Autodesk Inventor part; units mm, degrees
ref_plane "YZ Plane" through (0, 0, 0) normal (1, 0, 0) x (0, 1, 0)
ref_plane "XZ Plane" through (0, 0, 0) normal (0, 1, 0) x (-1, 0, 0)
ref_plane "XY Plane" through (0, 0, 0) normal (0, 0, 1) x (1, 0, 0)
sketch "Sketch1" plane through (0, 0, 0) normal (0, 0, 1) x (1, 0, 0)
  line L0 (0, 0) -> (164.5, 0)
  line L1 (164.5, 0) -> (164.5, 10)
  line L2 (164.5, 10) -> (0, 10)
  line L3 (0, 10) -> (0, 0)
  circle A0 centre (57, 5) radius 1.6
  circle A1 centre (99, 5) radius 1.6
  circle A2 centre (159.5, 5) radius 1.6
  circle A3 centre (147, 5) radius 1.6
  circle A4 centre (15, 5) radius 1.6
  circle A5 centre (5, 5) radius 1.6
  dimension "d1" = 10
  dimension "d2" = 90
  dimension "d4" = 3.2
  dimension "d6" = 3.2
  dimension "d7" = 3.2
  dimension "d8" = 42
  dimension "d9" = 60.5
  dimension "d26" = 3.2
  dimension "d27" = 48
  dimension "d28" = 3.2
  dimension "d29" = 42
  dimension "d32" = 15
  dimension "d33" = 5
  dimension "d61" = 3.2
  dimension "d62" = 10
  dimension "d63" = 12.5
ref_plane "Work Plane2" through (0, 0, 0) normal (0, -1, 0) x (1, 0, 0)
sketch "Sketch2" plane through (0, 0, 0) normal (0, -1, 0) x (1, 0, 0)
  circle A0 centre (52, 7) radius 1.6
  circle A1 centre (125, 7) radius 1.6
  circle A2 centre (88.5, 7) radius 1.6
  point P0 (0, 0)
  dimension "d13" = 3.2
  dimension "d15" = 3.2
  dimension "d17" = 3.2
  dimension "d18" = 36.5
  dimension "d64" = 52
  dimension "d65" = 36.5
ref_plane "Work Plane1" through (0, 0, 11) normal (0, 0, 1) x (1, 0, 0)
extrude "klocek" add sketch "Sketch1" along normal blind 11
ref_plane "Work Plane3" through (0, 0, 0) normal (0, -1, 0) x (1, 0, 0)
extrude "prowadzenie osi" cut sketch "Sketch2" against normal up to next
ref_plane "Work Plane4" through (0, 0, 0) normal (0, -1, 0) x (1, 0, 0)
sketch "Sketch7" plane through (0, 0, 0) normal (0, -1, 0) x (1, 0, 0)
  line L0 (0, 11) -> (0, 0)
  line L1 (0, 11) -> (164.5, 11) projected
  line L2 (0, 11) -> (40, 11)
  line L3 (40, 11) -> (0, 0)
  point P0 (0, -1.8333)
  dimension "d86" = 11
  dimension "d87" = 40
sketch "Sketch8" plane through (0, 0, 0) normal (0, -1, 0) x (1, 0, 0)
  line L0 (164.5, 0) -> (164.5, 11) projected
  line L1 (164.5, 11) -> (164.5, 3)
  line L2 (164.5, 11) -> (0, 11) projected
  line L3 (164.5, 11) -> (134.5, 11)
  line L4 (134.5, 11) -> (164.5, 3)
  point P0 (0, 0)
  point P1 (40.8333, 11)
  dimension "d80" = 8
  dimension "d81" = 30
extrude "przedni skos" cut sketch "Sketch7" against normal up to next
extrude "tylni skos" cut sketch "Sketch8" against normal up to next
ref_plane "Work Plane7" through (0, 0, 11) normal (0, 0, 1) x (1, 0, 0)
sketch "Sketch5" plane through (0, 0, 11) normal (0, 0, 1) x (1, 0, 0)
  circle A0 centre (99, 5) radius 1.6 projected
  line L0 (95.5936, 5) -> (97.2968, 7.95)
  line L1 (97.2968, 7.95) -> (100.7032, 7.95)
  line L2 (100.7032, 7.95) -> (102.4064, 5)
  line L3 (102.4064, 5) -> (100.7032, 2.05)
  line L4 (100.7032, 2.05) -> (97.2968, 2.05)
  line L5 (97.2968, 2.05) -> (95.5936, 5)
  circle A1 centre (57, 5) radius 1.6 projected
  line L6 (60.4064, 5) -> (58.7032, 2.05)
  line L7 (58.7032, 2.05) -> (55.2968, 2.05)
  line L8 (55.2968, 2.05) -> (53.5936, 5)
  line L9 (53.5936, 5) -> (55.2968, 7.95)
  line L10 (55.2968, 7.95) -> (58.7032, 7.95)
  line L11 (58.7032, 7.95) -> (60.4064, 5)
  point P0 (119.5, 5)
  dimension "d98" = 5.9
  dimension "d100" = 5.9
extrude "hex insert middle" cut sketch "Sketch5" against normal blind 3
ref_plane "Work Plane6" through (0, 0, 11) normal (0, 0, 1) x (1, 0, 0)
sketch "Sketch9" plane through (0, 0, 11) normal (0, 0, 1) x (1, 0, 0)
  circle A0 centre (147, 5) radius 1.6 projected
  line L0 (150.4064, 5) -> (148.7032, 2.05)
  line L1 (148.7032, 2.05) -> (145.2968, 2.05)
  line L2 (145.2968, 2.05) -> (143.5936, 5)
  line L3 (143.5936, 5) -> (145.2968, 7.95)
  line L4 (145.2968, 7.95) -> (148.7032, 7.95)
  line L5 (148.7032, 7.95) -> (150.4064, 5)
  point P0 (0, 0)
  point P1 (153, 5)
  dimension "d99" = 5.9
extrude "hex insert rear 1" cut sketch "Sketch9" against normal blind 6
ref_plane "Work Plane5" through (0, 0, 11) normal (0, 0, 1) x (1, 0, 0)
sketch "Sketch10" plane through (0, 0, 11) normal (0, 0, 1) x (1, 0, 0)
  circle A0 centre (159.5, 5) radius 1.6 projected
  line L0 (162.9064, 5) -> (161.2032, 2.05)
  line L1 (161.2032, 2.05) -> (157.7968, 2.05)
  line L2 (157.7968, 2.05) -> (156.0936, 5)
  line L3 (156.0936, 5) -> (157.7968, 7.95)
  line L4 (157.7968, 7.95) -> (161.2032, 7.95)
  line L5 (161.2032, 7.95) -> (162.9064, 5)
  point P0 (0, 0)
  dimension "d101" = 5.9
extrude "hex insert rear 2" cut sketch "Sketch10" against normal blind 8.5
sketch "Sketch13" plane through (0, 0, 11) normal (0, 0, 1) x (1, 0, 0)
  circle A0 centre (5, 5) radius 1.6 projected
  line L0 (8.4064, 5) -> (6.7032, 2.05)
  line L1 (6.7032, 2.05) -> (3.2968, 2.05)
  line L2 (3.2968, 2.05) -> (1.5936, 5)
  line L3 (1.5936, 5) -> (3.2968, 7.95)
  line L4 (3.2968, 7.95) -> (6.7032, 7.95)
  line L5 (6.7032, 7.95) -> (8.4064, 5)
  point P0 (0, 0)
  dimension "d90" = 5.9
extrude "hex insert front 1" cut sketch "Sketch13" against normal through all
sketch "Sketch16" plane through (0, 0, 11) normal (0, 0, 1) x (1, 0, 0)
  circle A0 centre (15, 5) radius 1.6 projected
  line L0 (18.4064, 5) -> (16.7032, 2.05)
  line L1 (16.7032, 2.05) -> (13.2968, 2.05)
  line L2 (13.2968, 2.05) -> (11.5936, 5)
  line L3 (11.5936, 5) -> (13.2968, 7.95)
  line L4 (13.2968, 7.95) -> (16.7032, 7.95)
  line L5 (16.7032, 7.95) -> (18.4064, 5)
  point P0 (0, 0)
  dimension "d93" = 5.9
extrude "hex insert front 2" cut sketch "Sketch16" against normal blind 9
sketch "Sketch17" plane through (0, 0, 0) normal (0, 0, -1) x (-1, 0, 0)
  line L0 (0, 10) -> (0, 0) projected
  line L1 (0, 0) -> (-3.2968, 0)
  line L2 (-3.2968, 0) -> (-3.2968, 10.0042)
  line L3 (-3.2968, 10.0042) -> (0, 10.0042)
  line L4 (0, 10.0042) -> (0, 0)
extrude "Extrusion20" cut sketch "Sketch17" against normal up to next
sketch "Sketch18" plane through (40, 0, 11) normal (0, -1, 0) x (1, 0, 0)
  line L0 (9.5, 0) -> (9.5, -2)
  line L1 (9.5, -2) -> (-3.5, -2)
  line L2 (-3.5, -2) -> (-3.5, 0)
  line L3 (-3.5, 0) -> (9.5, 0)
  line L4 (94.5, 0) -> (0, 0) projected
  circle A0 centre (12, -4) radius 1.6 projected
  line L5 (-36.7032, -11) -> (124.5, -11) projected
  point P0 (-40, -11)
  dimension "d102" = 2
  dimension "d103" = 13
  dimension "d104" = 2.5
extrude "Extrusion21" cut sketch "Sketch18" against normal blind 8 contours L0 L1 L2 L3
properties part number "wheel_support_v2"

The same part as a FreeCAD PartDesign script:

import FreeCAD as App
import Part
import Sketcher
Q = App.Units.Quantity


def add_polygon(sketch, points):
    """Adds a closed chain of lines whose ends are joined by coincident constraints."""
    first, n = sketch.GeometryCount, len(points)
    for a, b in zip(points, points[1:] + points[:1]):
        sketch.addGeometry(Part.LineSegment(App.Vector(*a, 0), App.Vector(*b, 0)), False)
    for i in range(n):
        sketch.addConstraint(Sketcher.Constraint("Coincident", first + i, 2, first + (i + 1) % n, 1))

doc = App.newDocument("Part")
body = doc.addObject("PartDesign::Body", "Body")

sketch1 = doc.addObject("Sketcher::SketchObject", "Sketch")
body.addObject(sketch1)
sketch1.AttachmentSupport = (doc.XY_Plane, [""])
sketch1.MapMode = "FlatFace"
add_polygon(sketch1, [(0, 10), (0, 0), (164.5, 0), (164.5, 10)])
sketch1.addGeometry(Part.Circle(App.Vector(5, 5, 0), App.Vector(0, 0, 1), 1.6), False)
sketch1.addGeometry(Part.Circle(App.Vector(15, 5, 0), App.Vector(0, 0, 1), 1.6), False)
sketch1.addGeometry(Part.Circle(App.Vector(57, 5, 0), App.Vector(0, 0, 1), 1.6), False)
sketch1.addGeometry(Part.Circle(App.Vector(99, 5, 0), App.Vector(0, 0, 1), 1.6), False)
sketch1.addGeometry(Part.Circle(App.Vector(147, 5, 0), App.Vector(0, 0, 1), 1.6), False)
sketch1.addGeometry(Part.Circle(App.Vector(159.5, 5, 0), App.Vector(0, 0, 1), 1.6), False)
sketch1.addConstraint(Sketcher.Constraint("Vertical", 0))
sketch1.addConstraint(Sketcher.Constraint("Horizontal", 1))
sketch1.addConstraint(Sketcher.Constraint("Vertical", 2))
sketch1.addConstraint(Sketcher.Constraint("Horizontal", 3))
sketch1.addConstraint(Sketcher.Constraint("Coincident", 0, 2, -1, 1))
sketch1.addConstraint(Sketcher.Constraint("Equal", 4, 5))
sketch1.addConstraint(Sketcher.Constraint("Equal", 5, 6))
sketch1.addConstraint(Sketcher.Constraint("Equal", 6, 7))
sketch1.addConstraint(Sketcher.Constraint("Equal", 7, 8))
sketch1.addConstraint(Sketcher.Constraint("Equal", 8, 9))
sketch1.addConstraint(Sketcher.Constraint("Horizontal", 4, 3, 5, 3))
sketch1.addConstraint(Sketcher.Constraint("Horizontal", 5, 3, 6, 3))
sketch1.addConstraint(Sketcher.Constraint("Horizontal", 6, 3, 7, 3))
sketch1.addConstraint(Sketcher.Constraint("Horizontal", 7, 3, 8, 3))
sketch1.addConstraint(Sketcher.Constraint("Horizontal", 8, 3, 9, 3))
sketch1.addConstraint(Sketcher.Constraint("Diameter", 4, 3.2))
sketch1.addConstraint(Sketcher.Constraint("DistanceY", 0, 2, 0, 1, 10.0))
sketch1.addConstraint(Sketcher.Constraint("DistanceX", -1, 1, 4, 3, 5.0))
sketch1.addConstraint(Sketcher.Constraint("DistanceY", -1, 1, 4, 3, 5.0))
sketch1.addConstraint(Sketcher.Constraint("DistanceX", -1, 1, 5, 3, 15.0))
sketch1.addConstraint(Sketcher.Constraint("DistanceX", 5, 3, 6, 3, 42.0))
sketch1.addConstraint(Sketcher.Constraint("DistanceX", 6, 3, 7, 3, 42.0))
sketch1.addConstraint(Sketcher.Constraint("DistanceX", 7, 3, 8, 3, 48.0))
sketch1.addConstraint(Sketcher.Constraint("DistanceX", 9, 3, 1, 2, 5.0))
sketch1.addConstraint(Sketcher.Constraint("DistanceX", 8, 3, 9, 3, 12.5))
pad1 = doc.addObject("PartDesign::Pad", "Pad")
body.addObject(pad1)
pad1.Profile = sketch1
pad1.Length = 11

sketch2 = doc.addObject("Sketcher::SketchObject", "Sketch001")
body.addObject(sketch2)
sketch2.AttachmentSupport = (doc.XZ_Plane, [""])
sketch2.MapMode = "FlatFace"
sketch2.addGeometry(Part.Circle(App.Vector(52, 7, 0), App.Vector(0, 0, 1), 1.6), False)
sketch2.addGeometry(Part.Circle(App.Vector(125, 7, 0), App.Vector(0, 0, 1), 1.6), False)
sketch2.addGeometry(Part.Circle(App.Vector(88.5, 7, 0), App.Vector(0, 0, 1), 1.6), False)
sketch2.addConstraint(Sketcher.Constraint("Equal", 0, 1))
sketch2.addConstraint(Sketcher.Constraint("Equal", 1, 2))
sketch2.addConstraint(Sketcher.Constraint("Horizontal", 0, 3, 1, 3))
sketch2.addConstraint(Sketcher.Constraint("Horizontal", 1, 3, 2, 3))
sketch2.addConstraint(Sketcher.Constraint("Diameter", 0, 3.2))
sketch2.addConstraint(Sketcher.Constraint("DistanceX", -1, 1, 0, 3, 52.0))
sketch2.addConstraint(Sketcher.Constraint("DistanceX", 0, 3, 2, 3, 36.5))
sketch2.addConstraint(Sketcher.Constraint("DistanceX", 2, 3, 1, 3, 36.5))
sketch2.addConstraint(Sketcher.Constraint("DistanceY", -1, 1, 0, 3, 7.0))
pocket1 = doc.addObject("PartDesign::Pocket", "Pocket")
body.addObject(pocket1)
pocket1.Profile = sketch2
pocket1.Type = "UpToFirst"

sketch3 = doc.addObject("Sketcher::SketchObject", "Sketch002")
body.addObject(sketch3)
sketch3.AttachmentSupport = (doc.XZ_Plane, [""])
sketch3.MapMode = "FlatFace"
add_polygon(sketch3, [(40, 11), (0, 11), (0, 0)])
sketch3.addConstraint(Sketcher.Constraint("Horizontal", 0))
sketch3.addConstraint(Sketcher.Constraint("Vertical", 1))
sketch3.addConstraint(Sketcher.Constraint("Coincident", 1, 2, -1, 1))
sketch3.addConstraint(Sketcher.Constraint("DistanceX", 0, 2, 0, 1, 40.0))
sketch3.addConstraint(Sketcher.Constraint("DistanceY", 1, 2, 1, 1, 11.0))
pocket2 = doc.addObject("PartDesign::Pocket", "Pocket001")
body.addObject(pocket2)
pocket2.Profile = sketch3
pocket2.Type = "UpToFirst"

sketch4 = doc.addObject("Sketcher::SketchObject", "Sketch003")
body.addObject(sketch4)
sketch4.AttachmentSupport = (doc.XZ_Plane, [""])
sketch4.MapMode = "FlatFace"
add_polygon(sketch4, [(134, 11), (164, 3), (164, 11)])
sketch4.addConstraint(Sketcher.Constraint("Vertical", 1))
sketch4.addConstraint(Sketcher.Constraint("Horizontal", 2))
sketch4.addConstraint(Sketcher.Constraint("DistanceX", 2, 2, 2, 1, 30.0))
sketch4.addConstraint(Sketcher.Constraint("DistanceY", 1, 1, 1, 2, 8.0))
sketch4.addConstraint(Sketcher.Constraint("DistanceY", -1, 1, 0, 2, 3.0))
sketch4.addConstraint(Sketcher.Constraint("DistanceX", -1, 1, 0, 2, 164.5))
pocket3 = doc.addObject("PartDesign::Pocket", "Pocket002")
body.addObject(pocket3)
pocket3.Profile = sketch4
pocket3.Type = "UpToFirst"

sketch5 = doc.addObject("Sketcher::SketchObject", "Sketch004")
body.addObject(sketch5)
sketch5.AttachmentSupport = (doc.XY_Plane, [""])
sketch5.MapMode = "FlatFace"
sketch5.AttachmentOffset = App.Placement(App.Vector(0, 0, 11), App.Rotation())
add_polygon(sketch5, [(97.3, 8), (95.6, 5), (97.3, 2), (100.7, 2), (102.4, 5), (100.7, 8)])
sketch5.addGeometry(Part.Circle(App.Vector(99, 5, 0), App.Vector(0, 0, 1), 1.6), False)
add_polygon(sketch5, [(58.7, 2), (60.4, 5), (58.7, 8), (55.3, 8), (53.6, 5), (55.3, 2)])
sketch5.addGeometry(Part.Circle(App.Vector(57, 5, 0), App.Vector(0, 0, 1), 1.6), False)
sketch5.addConstraint(Sketcher.Constraint("Horizontal", 2))
sketch5.addConstraint(Sketcher.Constraint("Horizontal", 5))
sketch5.addConstraint(Sketcher.Constraint("Horizontal", 9))
sketch5.addConstraint(Sketcher.Constraint("Horizontal", 12))
sketch5.addConstraint(Sketcher.Constraint("Equal", 6, 13))
sketch5.addConstraint(Sketcher.Constraint("Parallel", 0, 3))
sketch5.addConstraint(Sketcher.Constraint("Parallel", 1, 4))
sketch5.addConstraint(Sketcher.Constraint("Parallel", 3, 7))
sketch5.addConstraint(Sketcher.Constraint("Parallel", 4, 8))
sketch5.addConstraint(Sketcher.Constraint("Parallel", 7, 10))
sketch5.addConstraint(Sketcher.Constraint("Parallel", 8, 11))
sketch5.addConstraint(Sketcher.Constraint("Horizontal", 6, 3, 13, 3))
sketch5.addConstraint(Sketcher.Constraint("Horizontal", 13, 3, 0, 2))
sketch5.addConstraint(Sketcher.Constraint("Horizontal", 0, 2, 3, 2))
sketch5.addConstraint(Sketcher.Constraint("Horizontal", 3, 2, 7, 2))
sketch5.addConstraint(Sketcher.Constraint("Horizontal", 5, 2, 8, 2))
sketch5.addConstraint(Sketcher.Constraint("Horizontal", 7, 2, 10, 2))
sketch5.addConstraint(Sketcher.Constraint("Horizontal", 2, 2, 11, 2))
sketch5.addConstraint(Sketcher.Constraint("Vertical", 2, 2, 4, 2))
sketch5.addConstraint(Sketcher.Constraint("Vertical", 1, 2, 5, 2))
sketch5.addConstraint(Sketcher.Constraint("Equal", 5, 9))
sketch5.addConstraint(Sketcher.Constraint("Diameter", 6, 3.2))
sketch5.addConstraint(Sketcher.Constraint("DistanceY", 2, 2, 4, 2, 5.9))
sketch5.addConstraint(Sketcher.Constraint("Angle", 0, Q("-120.0002 deg")))
sketch5.addConstraint(Sketcher.Constraint("DistanceX", -1, 1, 6, 3, 99.0))
sketch5.addConstraint(Sketcher.Constraint("DistanceY", -1, 1, 6, 3, 5.0))
sketch5.addConstraint(Sketcher.Constraint("DistanceX", -1, 1, 13, 3, 57.0))
sketch5.addConstraint(Sketcher.Constraint("DistanceX", 9, 2, 5, 2, 42.0))
sketch5.addConstraint(Sketcher.Constraint("DistanceX", 2, 1, 2, 2, 3.4064))
sketch5.addConstraint(Sketcher.Constraint("DistanceX", -1, 1, 0, 2, 95.5936))
pocket4 = doc.addObject("PartDesign::Pocket", "Pocket003")
body.addObject(pocket4)
pocket4.Profile = sketch5
pocket4.Length = 3

sketch6 = doc.addObject("Sketcher::SketchObject", "Sketch005")
body.addObject(sketch6)
sketch6.AttachmentSupport = (doc.XY_Plane, [""])
sketch6.MapMode = "FlatFace"
sketch6.AttachmentOffset = App.Placement(App.Vector(0, 0, 11), App.Rotation())
add_polygon(sketch6, [(148.7, 2), (150.4, 5), (148.7, 8), (145.3, 8), (143.6, 5), (145.3, 2)])
sketch6.addGeometry(Part.Circle(App.Vector(147, 5, 0), App.Vector(0, 0, 1), 1.6), False)
sketch6.addConstraint(Sketcher.Constraint("Horizontal", 2))
sketch6.addConstraint(Sketcher.Constraint("Horizontal", 5))
sketch6.addConstraint(Sketcher.Constraint("Parallel", 0, 3))
sketch6.addConstraint(Sketcher.Constraint("Parallel", 1, 4))
sketch6.addConstraint(Sketcher.Constraint("Horizontal", 6, 3, 0, 2))
sketch6.addConstraint(Sketcher.Constraint("Horizontal", 0, 2, 3, 2))
sketch6.addConstraint(Sketcher.Constraint("Vertical", 2, 2, 4, 2))
sketch6.addConstraint(Sketcher.Constraint("Vertical", 1, 2, 5, 2))
sketch6.addConstraint(Sketcher.Constraint("Diameter", 6, 3.2))
sketch6.addConstraint(Sketcher.Constraint("DistanceY", 4, 2, 2, 2, 5.9))
sketch6.addConstraint(Sketcher.Constraint("Angle", 0, Q("59.9998 deg")))
sketch6.addConstraint(Sketcher.Constraint("DistanceX", -1, 1, 6, 3, 147.0))
sketch6.addConstraint(Sketcher.Constraint("DistanceY", -1, 1, 6, 3, 5.0))
sketch6.addConstraint(Sketcher.Constraint("DistanceX", 2, 2, 2, 1, 3.4064))
sketch6.addConstraint(Sketcher.Constraint("DistanceX", -1, 1, 0, 2, 150.4064))
pocket5 = doc.addObject("PartDesign::Pocket", "Pocket004")
body.addObject(pocket5)
pocket5.Profile = sketch6
pocket5.Length = 6

sketch7 = doc.addObject("Sketcher::SketchObject", "Sketch006")
body.addObject(sketch7)
sketch7.AttachmentSupport = (doc.XY_Plane, [""])
sketch7.MapMode = "FlatFace"
sketch7.AttachmentOffset = App.Placement(App.Vector(0, 0, 11), App.Rotation())
add_polygon(sketch7, [(161.2, 2), (162.9, 5), (161.2, 8), (157.8, 8), (156.1, 5), (157.8, 2)])
sketch7.addGeometry(Part.Circle(App.Vector(159.5, 5, 0), App.Vector(0, 0, 1), 1.6), False)
sketch7.addConstraint(Sketcher.Constraint("Horizontal", 2))
sketch7.addConstraint(Sketcher.Constraint("Horizontal", 5))
sketch7.addConstraint(Sketcher.Constraint("Parallel", 0, 3))
sketch7.addConstraint(Sketcher.Constraint("Parallel", 1, 4))
sketch7.addConstraint(Sketcher.Constraint("Horizontal", 6, 3, 0, 2))
sketch7.addConstraint(Sketcher.Constraint("Horizontal", 0, 2, 3, 2))
sketch7.addConstraint(Sketcher.Constraint("Vertical", 2, 2, 4, 2))
sketch7.addConstraint(Sketcher.Constraint("Vertical", 1, 2, 5, 2))
sketch7.addConstraint(Sketcher.Constraint("Diameter", 6, 3.2))
sketch7.addConstraint(Sketcher.Constraint("DistanceY", 4, 2, 2, 2, 5.9))
sketch7.addConstraint(Sketcher.Constraint("Angle", 0, Q("59.9998 deg")))
sketch7.addConstraint(Sketcher.Constraint("DistanceY", -1, 1, 6, 3, 5.0))
sketch7.addConstraint(Sketcher.Constraint("DistanceX", -1, 1, 6, 3, 159.5))
sketch7.addConstraint(Sketcher.Constraint("DistanceX", 2, 2, 2, 1, 3.4064))
sketch7.addConstraint(Sketcher.Constraint("DistanceX", -1, 1, 0, 2, 162.9064))
pocket6 = doc.addObject("PartDesign::Pocket", "Pocket005")
body.addObject(pocket6)
pocket6.Profile = sketch7
pocket6.Length = 8.5

sketch8 = doc.addObject("Sketcher::SketchObject", "Sketch007")
body.addObject(sketch8)
sketch8.AttachmentSupport = (doc.XY_Plane, [""])
sketch8.MapMode = "FlatFace"
sketch8.AttachmentOffset = App.Placement(App.Vector(0, 0, 11), App.Rotation())
add_polygon(sketch8, [(6.7, 2), (8.4, 5), (6.7, 8), (3.3, 8), (1.6, 5), (3.3, 2)])
sketch8.addGeometry(Part.Circle(App.Vector(5, 5, 0), App.Vector(0, 0, 1), 1.6), False)
sketch8.addConstraint(Sketcher.Constraint("Horizontal", 2))
sketch8.addConstraint(Sketcher.Constraint("Horizontal", 5))
sketch8.addConstraint(Sketcher.Constraint("Parallel", 0, 3))
sketch8.addConstraint(Sketcher.Constraint("Parallel", 1, 4))
sketch8.addConstraint(Sketcher.Constraint("Horizontal", 6, 3, 0, 2))
sketch8.addConstraint(Sketcher.Constraint("Horizontal", 0, 2, 3, 2))
sketch8.addConstraint(Sketcher.Constraint("Vertical", 2, 2, 4, 2))
sketch8.addConstraint(Sketcher.Constraint("Vertical", 1, 2, 5, 2))
sketch8.addConstraint(Sketcher.Constraint("Diameter", 6, 3.2))
sketch8.addConstraint(Sketcher.Constraint("DistanceY", 4, 2, 2, 2, 5.9))
sketch8.addConstraint(Sketcher.Constraint("Angle", 0, Q("59.9998 deg")))
sketch8.addConstraint(Sketcher.Constraint("DistanceX", -1, 1, 6, 3, 5.0))
sketch8.addConstraint(Sketcher.Constraint("DistanceY", -1, 1, 6, 3, 5.0))
sketch8.addConstraint(Sketcher.Constraint("DistanceX", 2, 2, 2, 1, 3.4064))
sketch8.addConstraint(Sketcher.Constraint("DistanceX", -1, 1, 0, 2, 8.4064))
pocket7 = doc.addObject("PartDesign::Pocket", "Pocket006")
body.addObject(pocket7)
pocket7.Profile = sketch8
pocket7.Type = "ThroughAll"

sketch9 = doc.addObject("Sketcher::SketchObject", "Sketch008")
body.addObject(sketch9)
sketch9.AttachmentSupport = (doc.XY_Plane, [""])
sketch9.MapMode = "FlatFace"
sketch9.AttachmentOffset = App.Placement(App.Vector(0, 0, 11), App.Rotation())
add_polygon(sketch9, [(16.7, 2), (18.4, 5), (16.7, 8), (13.3, 8), (11.6, 5), (13.3, 2)])
sketch9.addGeometry(Part.Circle(App.Vector(15, 5, 0), App.Vector(0, 0, 1), 1.6), False)
sketch9.addConstraint(Sketcher.Constraint("Horizontal", 2))
sketch9.addConstraint(Sketcher.Constraint("Horizontal", 5))
sketch9.addConstraint(Sketcher.Constraint("Parallel", 0, 3))
sketch9.addConstraint(Sketcher.Constraint("Parallel", 1, 4))
sketch9.addConstraint(Sketcher.Constraint("Horizontal", 6, 3, 0, 2))
sketch9.addConstraint(Sketcher.Constraint("Horizontal", 0, 2, 3, 2))
sketch9.addConstraint(Sketcher.Constraint("Vertical", 2, 2, 4, 2))
sketch9.addConstraint(Sketcher.Constraint("Vertical", 1, 2, 5, 2))
sketch9.addConstraint(Sketcher.Constraint("Diameter", 6, 3.2))
sketch9.addConstraint(Sketcher.Constraint("DistanceY", 4, 2, 2, 2, 5.9))
sketch9.addConstraint(Sketcher.Constraint("Angle", 0, Q("59.9998 deg")))
sketch9.addConstraint(Sketcher.Constraint("DistanceX", -1, 1, 6, 3, 15.0))
sketch9.addConstraint(Sketcher.Constraint("DistanceY", -1, 1, 6, 3, 5.0))
sketch9.addConstraint(Sketcher.Constraint("DistanceX", 2, 2, 2, 1, 3.4064))
sketch9.addConstraint(Sketcher.Constraint("DistanceX", -1, 1, 0, 2, 18.4064))
pocket8 = doc.addObject("PartDesign::Pocket", "Pocket007")
body.addObject(pocket8)
pocket8.Profile = sketch9
pocket8.Length = 9

sketch10 = doc.addObject("Sketcher::SketchObject", "Sketch009")
body.addObject(sketch10)
sketch10.AttachmentSupport = (doc.XY_Plane, [""])
sketch10.MapMode = "FlatFace"
add_polygon(sketch10, [(0, 0), (0, 10), (3.3, 10), (3.3, 0)])
sketch10.addConstraint(Sketcher.Constraint("Vertical", 0))
sketch10.addConstraint(Sketcher.Constraint("Horizontal", 1))
sketch10.addConstraint(Sketcher.Constraint("Vertical", 2))
sketch10.addConstraint(Sketcher.Constraint("Horizontal", 3))
sketch10.addConstraint(Sketcher.Constraint("Coincident", 3, 2, -1, 1))
sketch10.addConstraint(Sketcher.Constraint("DistanceX", 1, 1, 1, 2, 3.2968))
sketch10.addConstraint(Sketcher.Constraint("DistanceY", 0, 1, 0, 2, 10.0042))
pocket9 = doc.addObject("PartDesign::Pocket", "Pocket008")
body.addObject(pocket9)
pocket9.Profile = sketch10
pocket9.Length = 0.9066
pocket9.Reversed = True

sketch11 = doc.addObject("Sketcher::SketchObject", "Sketch010")
body.addObject(sketch11)
sketch11.AttachmentSupport = (doc.XZ_Plane, [""])
sketch11.MapMode = "FlatFace"
add_polygon(sketch11, [(49.5, 9), (49.5, 11), (36.5, 11), (36.5, 9)])
sketch11.addConstraint(Sketcher.Constraint("Vertical", 0))
sketch11.addConstraint(Sketcher.Constraint("Horizontal", 1))
sketch11.addConstraint(Sketcher.Constraint("Vertical", 2))
sketch11.addConstraint(Sketcher.Constraint("Horizontal", 3))
sketch11.addConstraint(Sketcher.Constraint("DistanceX", 1, 2, 1, 1, 13.0))
sketch11.addConstraint(Sketcher.Constraint("DistanceY", 0, 1, 0, 2, 2.0))
sketch11.addConstraint(Sketcher.Constraint("DistanceY", -1, 1, 0, 2, 11.0))
sketch11.addConstraint(Sketcher.Constraint("DistanceX", -1, 1, 0, 2, 49.5))
pocket10 = doc.addObject("PartDesign::Pocket", "Pocket009")
body.addObject(pocket10)
pocket10.Profile = sketch11
pocket10.Length = 8

doc.recompute()
